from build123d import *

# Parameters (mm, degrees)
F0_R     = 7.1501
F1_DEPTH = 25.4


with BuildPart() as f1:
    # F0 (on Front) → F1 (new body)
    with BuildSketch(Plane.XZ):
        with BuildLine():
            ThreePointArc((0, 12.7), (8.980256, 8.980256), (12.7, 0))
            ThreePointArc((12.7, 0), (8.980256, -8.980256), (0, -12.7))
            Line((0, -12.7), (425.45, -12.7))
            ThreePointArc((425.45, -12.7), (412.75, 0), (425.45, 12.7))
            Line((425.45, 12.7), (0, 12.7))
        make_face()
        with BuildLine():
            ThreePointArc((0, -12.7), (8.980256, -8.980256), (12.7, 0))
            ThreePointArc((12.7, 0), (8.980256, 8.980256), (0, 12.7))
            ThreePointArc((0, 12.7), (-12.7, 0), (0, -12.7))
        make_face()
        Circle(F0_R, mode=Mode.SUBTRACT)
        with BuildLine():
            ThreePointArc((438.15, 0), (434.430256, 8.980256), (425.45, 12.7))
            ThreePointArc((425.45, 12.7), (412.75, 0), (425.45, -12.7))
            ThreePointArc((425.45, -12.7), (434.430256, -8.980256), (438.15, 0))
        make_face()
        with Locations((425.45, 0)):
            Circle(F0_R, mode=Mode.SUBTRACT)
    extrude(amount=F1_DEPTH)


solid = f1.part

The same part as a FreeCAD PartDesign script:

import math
import FreeCAD as App
import Part
import Sketcher
Q = App.Units.Quantity

doc = App.newDocument("Part")
body = doc.addObject("PartDesign::Body", "Body")

# Sketch on XZ plane
sketch1 = body.newObject("Sketcher::SketchObject", "Sketch")
sketch1.AttachmentSupport = (doc.getObject("XZ_Plane"), [""])
sketch1.MapMode = "FlatFace"
sketch1.addGeometry(Part.LineSegment(App.Vector(0, -13, 0), App.Vector(425, -13, 0)), False)
sketch1.addGeometry(Part.ArcOfCircle(Part.Circle(App.Vector(425, 0, 0), App.Vector(0, 0, 1), 13), math.radians(-90), math.radians(0)), False)
sketch1.addGeometry(Part.ArcOfCircle(Part.Circle(App.Vector(425, 0, 0), App.Vector(0, 0, 1), 13), math.radians(0), math.radians(90)), False)
sketch1.addGeometry(Part.LineSegment(App.Vector(425, 13, 0), App.Vector(0, 13, 0)), False)
sketch1.addGeometry(Part.ArcOfCircle(Part.Circle(App.Vector(0, 0, 0), App.Vector(0, 0, 1), 13), math.radians(90), math.radians(270)), False)
sketch1.addGeometry(Part.Circle(App.Vector(0, 0, 0), App.Vector(0, 0, 1), 7), False)
sketch1.addGeometry(Part.Circle(App.Vector(425, 0, 0), App.Vector(0, 0, 1), 7), False)
sketch1.addConstraint(Sketcher.Constraint("Tangent", 0, 2, 1, 1))
sketch1.addConstraint(Sketcher.Constraint("Tangent", 1, 2, 2, 1))
sketch1.addConstraint(Sketcher.Constraint("Tangent", 2, 2, 3, 1))
sketch1.addConstraint(Sketcher.Constraint("Tangent", 3, 2, 4, 1))
sketch1.addConstraint(Sketcher.Constraint("Tangent", 4, 2, 0, 1))
sketch1.addConstraint(Sketcher.Constraint("Horizontal", 0))
sketch1.addConstraint(Sketcher.Constraint("Horizontal", 3))
sketch1.addConstraint(Sketcher.Constraint("Coincident", 4, 3, -1, 1))
sketch1.addConstraint(Sketcher.Constraint("Coincident", 5, 3, -1, 1))
sketch1.addConstraint(Sketcher.Constraint("Coincident", 6, 3, 1, 3))
sketch1.addConstraint(Sketcher.Constraint("Equal", 1, 2))
sketch1.addConstraint(Sketcher.Constraint("Equal", 5, 6))
sketch1.addConstraint(Sketcher.Constraint("PointOnObject", 1, 2, -1))
sketch1.addConstraint(Sketcher.Constraint("Radius", 1, Q("0.5 in")))
sketch1.addConstraint(Sketcher.Constraint("Diameter", 5, Q("0.563 in")))
sketch1.addConstraint(Sketcher.Constraint("DistanceX", 0, 1, 0, 2, Q("16.75 in")))
pad1 = body.newObject("PartDesign::Pad", "Pad")
pad1.Profile = sketch1
pad1.Length = Q("1 in")

doc.recompute()
